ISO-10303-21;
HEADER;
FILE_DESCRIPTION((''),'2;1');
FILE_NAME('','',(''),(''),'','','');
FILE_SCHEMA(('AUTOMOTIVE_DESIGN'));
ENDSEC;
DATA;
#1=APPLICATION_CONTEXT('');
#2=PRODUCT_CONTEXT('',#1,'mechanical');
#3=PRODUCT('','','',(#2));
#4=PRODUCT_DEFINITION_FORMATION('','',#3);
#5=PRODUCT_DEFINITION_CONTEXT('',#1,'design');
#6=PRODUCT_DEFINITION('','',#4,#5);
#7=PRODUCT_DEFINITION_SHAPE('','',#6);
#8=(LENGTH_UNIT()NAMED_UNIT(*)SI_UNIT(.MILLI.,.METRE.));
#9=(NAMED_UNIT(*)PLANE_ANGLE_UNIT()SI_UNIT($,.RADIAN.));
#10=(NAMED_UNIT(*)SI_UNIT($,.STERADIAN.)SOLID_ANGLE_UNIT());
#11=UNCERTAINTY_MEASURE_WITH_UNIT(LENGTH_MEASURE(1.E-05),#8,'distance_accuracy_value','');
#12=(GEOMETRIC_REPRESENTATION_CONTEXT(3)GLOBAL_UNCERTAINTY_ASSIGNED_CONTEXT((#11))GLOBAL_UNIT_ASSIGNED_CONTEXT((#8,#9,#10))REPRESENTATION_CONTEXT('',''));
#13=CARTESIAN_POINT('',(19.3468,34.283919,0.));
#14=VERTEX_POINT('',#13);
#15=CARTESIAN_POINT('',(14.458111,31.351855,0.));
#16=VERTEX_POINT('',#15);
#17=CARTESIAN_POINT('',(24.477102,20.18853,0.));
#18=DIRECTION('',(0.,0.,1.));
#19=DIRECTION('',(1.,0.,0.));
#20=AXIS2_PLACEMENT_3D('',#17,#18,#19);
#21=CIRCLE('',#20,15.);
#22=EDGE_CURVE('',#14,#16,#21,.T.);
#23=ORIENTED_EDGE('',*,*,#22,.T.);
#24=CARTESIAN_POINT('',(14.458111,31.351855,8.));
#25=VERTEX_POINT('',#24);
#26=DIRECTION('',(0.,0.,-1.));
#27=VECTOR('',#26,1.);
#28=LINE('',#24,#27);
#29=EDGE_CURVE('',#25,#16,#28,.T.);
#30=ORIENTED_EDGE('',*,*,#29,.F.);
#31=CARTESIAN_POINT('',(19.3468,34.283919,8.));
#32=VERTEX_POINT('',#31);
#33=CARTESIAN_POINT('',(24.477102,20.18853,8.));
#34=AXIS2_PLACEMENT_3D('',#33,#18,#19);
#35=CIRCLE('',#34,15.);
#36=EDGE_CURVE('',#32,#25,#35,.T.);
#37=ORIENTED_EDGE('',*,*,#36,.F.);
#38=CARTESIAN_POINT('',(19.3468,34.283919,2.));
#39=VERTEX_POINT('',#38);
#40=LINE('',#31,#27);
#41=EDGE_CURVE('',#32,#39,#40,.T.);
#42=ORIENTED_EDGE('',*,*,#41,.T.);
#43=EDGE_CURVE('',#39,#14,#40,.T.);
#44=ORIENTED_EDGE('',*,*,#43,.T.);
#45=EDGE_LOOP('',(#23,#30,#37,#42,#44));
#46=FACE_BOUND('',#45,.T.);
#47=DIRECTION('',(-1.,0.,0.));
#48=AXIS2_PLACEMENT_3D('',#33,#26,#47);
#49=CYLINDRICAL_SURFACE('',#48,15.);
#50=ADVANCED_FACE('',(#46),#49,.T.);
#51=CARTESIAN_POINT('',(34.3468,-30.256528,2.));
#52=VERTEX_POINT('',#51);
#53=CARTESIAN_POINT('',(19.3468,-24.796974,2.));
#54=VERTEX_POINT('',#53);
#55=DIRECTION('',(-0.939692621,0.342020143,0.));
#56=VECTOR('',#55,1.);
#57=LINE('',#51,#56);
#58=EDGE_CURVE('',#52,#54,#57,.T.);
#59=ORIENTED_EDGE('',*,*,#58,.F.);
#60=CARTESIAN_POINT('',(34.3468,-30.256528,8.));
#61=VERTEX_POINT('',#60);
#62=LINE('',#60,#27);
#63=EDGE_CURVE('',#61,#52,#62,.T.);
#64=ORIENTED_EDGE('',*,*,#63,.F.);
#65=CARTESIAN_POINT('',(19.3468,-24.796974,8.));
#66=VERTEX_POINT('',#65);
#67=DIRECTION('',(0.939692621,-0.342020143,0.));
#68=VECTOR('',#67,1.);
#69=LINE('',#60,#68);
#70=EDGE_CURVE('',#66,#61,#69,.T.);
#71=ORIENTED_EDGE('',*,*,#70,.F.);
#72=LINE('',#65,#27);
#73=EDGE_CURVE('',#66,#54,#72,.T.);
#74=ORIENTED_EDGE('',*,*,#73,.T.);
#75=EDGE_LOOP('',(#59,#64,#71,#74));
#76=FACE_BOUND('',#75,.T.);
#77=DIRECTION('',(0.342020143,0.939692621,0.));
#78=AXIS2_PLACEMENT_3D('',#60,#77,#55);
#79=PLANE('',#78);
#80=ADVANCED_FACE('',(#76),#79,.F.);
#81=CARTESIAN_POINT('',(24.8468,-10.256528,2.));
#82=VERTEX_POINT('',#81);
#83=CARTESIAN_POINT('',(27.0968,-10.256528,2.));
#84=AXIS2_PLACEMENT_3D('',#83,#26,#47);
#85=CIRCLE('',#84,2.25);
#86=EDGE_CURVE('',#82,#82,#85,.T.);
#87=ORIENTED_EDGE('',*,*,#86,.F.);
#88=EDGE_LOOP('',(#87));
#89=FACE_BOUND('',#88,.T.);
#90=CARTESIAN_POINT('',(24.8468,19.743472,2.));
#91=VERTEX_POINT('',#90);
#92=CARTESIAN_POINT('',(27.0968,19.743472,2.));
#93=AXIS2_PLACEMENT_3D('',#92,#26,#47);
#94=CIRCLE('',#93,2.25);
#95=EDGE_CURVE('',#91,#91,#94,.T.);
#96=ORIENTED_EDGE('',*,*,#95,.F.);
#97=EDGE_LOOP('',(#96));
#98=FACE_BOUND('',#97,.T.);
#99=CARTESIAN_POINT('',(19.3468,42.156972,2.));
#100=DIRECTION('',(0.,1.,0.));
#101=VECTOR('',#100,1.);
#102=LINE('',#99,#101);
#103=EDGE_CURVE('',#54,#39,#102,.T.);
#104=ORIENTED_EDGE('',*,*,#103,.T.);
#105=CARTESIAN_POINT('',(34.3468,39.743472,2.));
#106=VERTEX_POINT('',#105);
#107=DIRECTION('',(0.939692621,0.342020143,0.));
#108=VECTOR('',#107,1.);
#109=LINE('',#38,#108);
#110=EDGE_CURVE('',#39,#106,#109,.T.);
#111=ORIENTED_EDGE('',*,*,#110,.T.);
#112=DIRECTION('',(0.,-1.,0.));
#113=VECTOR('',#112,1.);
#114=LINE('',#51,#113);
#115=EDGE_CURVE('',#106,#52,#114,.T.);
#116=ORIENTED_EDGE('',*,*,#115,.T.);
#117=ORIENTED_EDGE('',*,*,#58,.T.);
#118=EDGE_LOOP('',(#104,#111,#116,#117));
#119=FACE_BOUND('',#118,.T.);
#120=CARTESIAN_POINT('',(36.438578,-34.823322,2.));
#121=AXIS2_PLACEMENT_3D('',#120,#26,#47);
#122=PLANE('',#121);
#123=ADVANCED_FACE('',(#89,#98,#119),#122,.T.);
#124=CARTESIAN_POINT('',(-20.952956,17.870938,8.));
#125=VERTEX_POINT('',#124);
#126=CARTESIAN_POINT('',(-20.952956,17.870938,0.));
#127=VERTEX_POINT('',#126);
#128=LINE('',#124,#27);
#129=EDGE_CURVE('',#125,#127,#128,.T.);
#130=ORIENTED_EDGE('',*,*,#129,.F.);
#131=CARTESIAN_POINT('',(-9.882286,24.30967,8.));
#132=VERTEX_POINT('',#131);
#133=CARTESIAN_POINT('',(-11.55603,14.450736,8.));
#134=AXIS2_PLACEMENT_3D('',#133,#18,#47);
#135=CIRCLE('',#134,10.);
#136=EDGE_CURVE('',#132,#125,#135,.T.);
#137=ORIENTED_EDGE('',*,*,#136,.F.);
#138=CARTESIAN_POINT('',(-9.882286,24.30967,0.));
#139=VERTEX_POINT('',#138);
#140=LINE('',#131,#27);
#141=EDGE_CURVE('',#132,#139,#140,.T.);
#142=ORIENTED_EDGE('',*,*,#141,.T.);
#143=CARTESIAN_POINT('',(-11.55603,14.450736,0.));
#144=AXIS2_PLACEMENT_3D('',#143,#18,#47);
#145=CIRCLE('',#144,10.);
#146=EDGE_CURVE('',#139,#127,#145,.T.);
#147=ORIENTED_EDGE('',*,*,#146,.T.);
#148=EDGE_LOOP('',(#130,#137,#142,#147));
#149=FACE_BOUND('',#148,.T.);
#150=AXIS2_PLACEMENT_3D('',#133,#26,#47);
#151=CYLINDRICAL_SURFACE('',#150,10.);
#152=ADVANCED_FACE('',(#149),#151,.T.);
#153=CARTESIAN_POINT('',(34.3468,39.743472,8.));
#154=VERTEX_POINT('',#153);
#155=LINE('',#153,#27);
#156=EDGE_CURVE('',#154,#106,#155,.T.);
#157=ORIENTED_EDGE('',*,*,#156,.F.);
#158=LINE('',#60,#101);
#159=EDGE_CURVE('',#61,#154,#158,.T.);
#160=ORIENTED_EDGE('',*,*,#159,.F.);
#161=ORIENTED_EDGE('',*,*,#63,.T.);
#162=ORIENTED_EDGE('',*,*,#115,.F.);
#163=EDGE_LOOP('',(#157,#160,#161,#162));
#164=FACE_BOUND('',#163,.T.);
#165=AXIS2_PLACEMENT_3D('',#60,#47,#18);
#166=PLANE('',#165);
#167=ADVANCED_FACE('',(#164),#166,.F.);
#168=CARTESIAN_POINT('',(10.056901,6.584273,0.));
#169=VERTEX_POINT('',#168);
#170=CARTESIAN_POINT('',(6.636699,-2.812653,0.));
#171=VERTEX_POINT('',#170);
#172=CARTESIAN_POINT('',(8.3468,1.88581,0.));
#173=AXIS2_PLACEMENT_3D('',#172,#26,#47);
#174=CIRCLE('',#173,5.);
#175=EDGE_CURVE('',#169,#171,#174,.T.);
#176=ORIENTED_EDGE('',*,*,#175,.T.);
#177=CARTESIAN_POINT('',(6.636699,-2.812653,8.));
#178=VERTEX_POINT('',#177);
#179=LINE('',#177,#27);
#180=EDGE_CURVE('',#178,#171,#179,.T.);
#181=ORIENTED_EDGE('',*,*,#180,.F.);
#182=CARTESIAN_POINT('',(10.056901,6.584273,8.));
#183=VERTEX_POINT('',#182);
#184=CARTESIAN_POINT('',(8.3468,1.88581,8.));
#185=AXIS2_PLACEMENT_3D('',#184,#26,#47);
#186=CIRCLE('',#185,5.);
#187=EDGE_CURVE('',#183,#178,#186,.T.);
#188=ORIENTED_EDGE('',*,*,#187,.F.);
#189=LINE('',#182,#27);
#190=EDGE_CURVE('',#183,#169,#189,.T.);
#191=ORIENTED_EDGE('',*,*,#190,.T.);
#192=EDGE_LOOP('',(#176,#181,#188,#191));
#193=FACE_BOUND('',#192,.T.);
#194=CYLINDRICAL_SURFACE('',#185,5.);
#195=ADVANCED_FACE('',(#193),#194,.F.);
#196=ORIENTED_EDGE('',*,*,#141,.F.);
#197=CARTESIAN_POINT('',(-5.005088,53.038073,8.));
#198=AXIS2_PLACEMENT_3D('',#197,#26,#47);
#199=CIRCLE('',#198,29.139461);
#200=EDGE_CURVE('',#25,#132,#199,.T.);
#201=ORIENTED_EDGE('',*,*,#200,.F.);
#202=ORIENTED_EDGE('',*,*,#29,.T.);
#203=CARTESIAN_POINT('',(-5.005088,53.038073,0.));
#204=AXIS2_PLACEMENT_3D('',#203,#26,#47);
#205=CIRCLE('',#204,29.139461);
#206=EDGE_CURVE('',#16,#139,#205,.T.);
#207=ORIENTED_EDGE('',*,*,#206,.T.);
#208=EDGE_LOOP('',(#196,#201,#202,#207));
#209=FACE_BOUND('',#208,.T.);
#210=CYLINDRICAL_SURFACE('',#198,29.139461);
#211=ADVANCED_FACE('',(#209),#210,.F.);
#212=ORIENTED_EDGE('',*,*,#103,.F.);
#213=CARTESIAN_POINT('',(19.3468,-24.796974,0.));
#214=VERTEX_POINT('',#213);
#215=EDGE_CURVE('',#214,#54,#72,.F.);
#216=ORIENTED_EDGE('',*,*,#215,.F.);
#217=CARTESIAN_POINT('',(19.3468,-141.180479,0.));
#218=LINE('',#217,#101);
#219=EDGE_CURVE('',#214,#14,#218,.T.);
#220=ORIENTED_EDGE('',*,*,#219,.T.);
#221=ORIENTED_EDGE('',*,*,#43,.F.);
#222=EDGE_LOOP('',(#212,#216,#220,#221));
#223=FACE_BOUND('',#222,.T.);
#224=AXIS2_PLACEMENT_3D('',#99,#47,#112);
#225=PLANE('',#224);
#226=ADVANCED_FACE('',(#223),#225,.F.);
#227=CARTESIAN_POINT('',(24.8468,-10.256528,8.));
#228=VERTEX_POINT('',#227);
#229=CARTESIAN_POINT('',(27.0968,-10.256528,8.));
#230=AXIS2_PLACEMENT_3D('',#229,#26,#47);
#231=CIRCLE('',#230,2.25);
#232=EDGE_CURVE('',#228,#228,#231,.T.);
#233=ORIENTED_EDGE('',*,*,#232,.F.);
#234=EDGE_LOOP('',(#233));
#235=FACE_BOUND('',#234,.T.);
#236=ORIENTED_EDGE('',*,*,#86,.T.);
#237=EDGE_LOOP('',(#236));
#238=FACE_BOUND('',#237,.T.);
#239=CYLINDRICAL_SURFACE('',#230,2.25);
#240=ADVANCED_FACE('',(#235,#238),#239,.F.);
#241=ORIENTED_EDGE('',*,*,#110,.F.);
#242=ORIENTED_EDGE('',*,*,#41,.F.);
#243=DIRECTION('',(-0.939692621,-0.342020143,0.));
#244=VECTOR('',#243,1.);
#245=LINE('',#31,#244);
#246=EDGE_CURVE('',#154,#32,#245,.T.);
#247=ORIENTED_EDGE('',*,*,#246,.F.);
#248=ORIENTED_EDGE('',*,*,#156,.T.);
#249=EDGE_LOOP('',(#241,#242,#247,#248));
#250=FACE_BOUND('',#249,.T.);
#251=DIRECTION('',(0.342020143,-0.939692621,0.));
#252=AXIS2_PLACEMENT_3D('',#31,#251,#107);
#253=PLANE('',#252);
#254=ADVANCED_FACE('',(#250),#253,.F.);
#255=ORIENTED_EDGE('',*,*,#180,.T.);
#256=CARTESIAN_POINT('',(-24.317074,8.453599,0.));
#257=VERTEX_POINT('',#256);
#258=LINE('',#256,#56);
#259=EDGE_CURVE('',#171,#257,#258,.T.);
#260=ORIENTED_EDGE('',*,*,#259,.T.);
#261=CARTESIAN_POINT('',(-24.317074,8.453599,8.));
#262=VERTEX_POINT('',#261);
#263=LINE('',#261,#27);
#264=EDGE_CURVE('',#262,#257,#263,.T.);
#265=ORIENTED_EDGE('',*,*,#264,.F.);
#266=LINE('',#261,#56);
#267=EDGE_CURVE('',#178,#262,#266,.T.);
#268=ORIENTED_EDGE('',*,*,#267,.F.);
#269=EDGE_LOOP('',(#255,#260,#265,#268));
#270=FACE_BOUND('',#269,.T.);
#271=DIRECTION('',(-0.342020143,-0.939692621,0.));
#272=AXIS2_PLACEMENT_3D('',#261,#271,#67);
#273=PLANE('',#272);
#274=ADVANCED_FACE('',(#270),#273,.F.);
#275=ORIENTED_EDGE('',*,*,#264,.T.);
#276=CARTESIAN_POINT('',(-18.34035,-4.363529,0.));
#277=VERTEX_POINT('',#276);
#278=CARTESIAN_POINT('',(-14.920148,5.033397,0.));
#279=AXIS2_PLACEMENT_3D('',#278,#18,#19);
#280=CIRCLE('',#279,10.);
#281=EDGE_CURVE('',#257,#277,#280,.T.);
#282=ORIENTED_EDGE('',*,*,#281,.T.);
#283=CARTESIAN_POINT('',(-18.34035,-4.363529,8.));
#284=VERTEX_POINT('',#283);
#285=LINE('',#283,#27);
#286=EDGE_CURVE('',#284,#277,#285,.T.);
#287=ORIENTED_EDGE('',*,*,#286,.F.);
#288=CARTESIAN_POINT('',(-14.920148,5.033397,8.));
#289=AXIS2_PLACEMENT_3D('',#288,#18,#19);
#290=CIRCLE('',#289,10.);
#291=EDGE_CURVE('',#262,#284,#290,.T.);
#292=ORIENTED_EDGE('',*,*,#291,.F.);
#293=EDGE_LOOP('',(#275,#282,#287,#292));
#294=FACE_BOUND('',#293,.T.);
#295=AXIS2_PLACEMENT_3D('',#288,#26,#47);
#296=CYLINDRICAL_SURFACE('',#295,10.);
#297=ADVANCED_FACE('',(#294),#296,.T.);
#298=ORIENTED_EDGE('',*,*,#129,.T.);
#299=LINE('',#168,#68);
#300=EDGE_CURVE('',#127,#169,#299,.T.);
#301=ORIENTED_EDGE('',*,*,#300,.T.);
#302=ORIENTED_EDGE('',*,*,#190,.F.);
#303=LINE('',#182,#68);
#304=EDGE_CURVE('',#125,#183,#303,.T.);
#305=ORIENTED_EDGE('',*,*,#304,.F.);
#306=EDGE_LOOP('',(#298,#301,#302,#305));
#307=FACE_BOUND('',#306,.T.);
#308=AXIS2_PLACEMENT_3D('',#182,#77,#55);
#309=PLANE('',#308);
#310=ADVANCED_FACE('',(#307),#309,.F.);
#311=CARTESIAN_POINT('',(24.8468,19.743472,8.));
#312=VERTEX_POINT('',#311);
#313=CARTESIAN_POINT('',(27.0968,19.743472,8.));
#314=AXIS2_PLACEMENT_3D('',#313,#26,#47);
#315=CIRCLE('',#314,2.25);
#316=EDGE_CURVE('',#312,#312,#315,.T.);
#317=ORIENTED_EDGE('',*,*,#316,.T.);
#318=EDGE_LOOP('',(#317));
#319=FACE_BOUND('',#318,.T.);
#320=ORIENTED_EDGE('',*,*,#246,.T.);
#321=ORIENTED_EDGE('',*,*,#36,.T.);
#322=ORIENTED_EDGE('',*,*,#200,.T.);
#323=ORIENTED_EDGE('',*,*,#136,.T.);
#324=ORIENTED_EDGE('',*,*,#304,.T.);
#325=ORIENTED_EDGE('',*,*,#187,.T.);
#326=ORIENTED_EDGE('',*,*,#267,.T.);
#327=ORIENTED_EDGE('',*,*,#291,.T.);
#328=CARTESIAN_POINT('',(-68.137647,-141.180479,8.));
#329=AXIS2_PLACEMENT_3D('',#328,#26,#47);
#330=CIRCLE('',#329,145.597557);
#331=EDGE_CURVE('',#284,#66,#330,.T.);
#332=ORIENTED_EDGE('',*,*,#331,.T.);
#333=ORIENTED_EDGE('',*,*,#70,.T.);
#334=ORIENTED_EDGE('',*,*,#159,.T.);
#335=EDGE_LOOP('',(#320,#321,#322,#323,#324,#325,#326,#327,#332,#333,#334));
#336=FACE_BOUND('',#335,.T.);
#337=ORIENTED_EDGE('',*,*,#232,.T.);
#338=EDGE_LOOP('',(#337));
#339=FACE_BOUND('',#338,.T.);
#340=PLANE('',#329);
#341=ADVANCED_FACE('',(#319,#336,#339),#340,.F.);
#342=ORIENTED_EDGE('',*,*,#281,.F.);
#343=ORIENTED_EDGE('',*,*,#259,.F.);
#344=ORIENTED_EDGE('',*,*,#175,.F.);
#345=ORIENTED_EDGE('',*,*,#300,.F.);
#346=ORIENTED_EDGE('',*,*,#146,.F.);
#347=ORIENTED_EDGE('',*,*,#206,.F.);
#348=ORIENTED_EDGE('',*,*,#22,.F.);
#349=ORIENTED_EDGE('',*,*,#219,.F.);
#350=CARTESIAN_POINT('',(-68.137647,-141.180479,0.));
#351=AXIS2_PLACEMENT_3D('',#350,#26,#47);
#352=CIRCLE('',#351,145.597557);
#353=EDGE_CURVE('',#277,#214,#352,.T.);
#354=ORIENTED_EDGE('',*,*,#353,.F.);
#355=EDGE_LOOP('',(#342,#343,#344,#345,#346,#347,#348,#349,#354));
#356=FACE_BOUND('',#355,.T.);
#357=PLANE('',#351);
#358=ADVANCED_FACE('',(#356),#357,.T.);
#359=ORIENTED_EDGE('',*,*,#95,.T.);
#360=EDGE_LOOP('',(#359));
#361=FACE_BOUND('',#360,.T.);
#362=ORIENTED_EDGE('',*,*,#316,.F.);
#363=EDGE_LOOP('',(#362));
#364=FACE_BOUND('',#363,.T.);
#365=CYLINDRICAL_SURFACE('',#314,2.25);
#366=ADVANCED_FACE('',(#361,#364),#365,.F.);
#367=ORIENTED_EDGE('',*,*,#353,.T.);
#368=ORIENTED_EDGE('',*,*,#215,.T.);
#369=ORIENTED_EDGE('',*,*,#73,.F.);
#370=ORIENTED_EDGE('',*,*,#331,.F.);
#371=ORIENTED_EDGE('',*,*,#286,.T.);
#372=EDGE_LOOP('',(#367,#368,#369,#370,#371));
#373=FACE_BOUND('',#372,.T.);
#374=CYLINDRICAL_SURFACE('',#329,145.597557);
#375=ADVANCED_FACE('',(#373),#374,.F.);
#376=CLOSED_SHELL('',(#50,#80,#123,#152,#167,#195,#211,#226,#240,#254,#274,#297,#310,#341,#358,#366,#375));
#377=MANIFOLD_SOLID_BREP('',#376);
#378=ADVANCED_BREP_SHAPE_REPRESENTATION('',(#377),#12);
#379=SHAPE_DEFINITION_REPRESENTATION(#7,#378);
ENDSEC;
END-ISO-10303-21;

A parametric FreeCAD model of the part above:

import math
import FreeCAD as App
import Part
import Sketcher
from FreeCAD import Vector
Q = App.Units.Quantity


def add_polygon(sketch, points):
    """Adds a closed chain of lines whose ends are joined by coincident constraints."""
    first, n = sketch.GeometryCount, len(points)
    for a, b in zip(points, points[1:] + points[:1]):
        sketch.addGeometry(Part.LineSegment(App.Vector(*a, 0), App.Vector(*b, 0)), False)
    for i in range(n):
        sketch.addConstraint(Sketcher.Constraint("Coincident", first + i, 2, first + (i + 1) % n, 1))

doc = App.newDocument("Part")
body = doc.addObject("PartDesign::Body", "Body")

sketch1 = body.newObject("Sketcher::SketchObject", "Sketch")
sketch1.AttachmentSupport = (doc.getObject("XY_Plane"), [""])
sketch1.MapMode = "FlatFace"
sketch1.addGeometry([
    Part.LineSegment(Vector(34, -30, 0), Vector(34, 40, 0)),
    Part.LineSegment(Vector(34, 40, 0), Vector(19, 34, 0)),
    Part.ArcOfCircle(Part.Circle(Vector(24, 20, 0), Vector(0, 0, 1), 15), math.radians(110), math.radians(132)),
    Part.ArcOfCircle(Part.Circle(Vector(-5, 53, 0), Vector(0, 0, 1), 29), math.radians(-100), math.radians(-48)),
    Part.ArcOfCircle(Part.Circle(Vector(-12, 14, 0), Vector(0, 0, 1), 10), math.radians(80), math.radians(160)),
    Part.LineSegment(Vector(-21, 18, 0), Vector(10, 7, 0)),
    Part.ArcOfCircle(Part.Circle(Vector(8, 2, 0), Vector(0, 0, 1), 5), math.radians(-110), math.radians(70)),
    Part.LineSegment(Vector(7, -3, 0), Vector(-24, 8, 0)),
    Part.ArcOfCircle(Part.Circle(Vector(-15, 5, 0), Vector(0, 0, 1), 10), math.radians(160), math.radians(250)),
    Part.ArcOfCircle(Part.Circle(Vector(-68, -141, 0), Vector(0, 0, 1), 146), math.radians(53.07), math.radians(70)),
    Part.LineSegment(Vector(19, -25, 0), Vector(34, -30, 0)),
], False)
sketch1.addConstraint([
    Sketcher.Constraint("Coincident", 0, 2, 1, 1),
    Sketcher.Constraint("Tangent", 1, 2, 2, 1),
    Sketcher.Constraint("Tangent", 2, 2, 3, 2),
    Sketcher.Constraint("Tangent", 3, 1, 4, 1),
    Sketcher.Constraint("Coincident", 4, 2, 5, 1),
    Sketcher.Constraint("Tangent", 5, 2, 6, 2),
    Sketcher.Constraint("Tangent", 6, 1, 7, 1),
    Sketcher.Constraint("Coincident", 7, 2, 8, 1),
    Sketcher.Constraint("Tangent", 8, 2, 9, 2),
    Sketcher.Constraint("Coincident", 9, 1, 10, 1),
    Sketcher.Constraint("Coincident", 10, 2, 0, 1),
    Sketcher.Constraint("Vertical", 0),
    Sketcher.Constraint("Equal", 4, 8),
    Sketcher.Constraint("Parallel", 5, 7),
    Sketcher.Constraint("Parallel", 7, 10),
    Sketcher.Constraint("Vertical", 1, 2, 9, 1),
    Sketcher.Constraint("Equal", 1, 10),
    Sketcher.Constraint("Radius", 2, 15.0),
    Sketcher.Constraint("Radius", 4, 10.0),
    Sketcher.Constraint("Radius", 6, 5.0),
    Sketcher.Constraint("DistanceY", 0, 1, 0, 2, 70.0),
    Sketcher.Constraint("Angle", 1, Q("-160 deg")),
    Sketcher.Constraint("Distance", 5, 33.0),
    Sketcher.Constraint("DistanceX", 6, 3, 0, 2, 26.0),
    Sketcher.Constraint("DistanceX", 1, 2, 0, 2, 15.0),
    Sketcher.Constraint("Radius", 3, 29.139461),
    Sketcher.Constraint("Radius", 9, 145.597557),
    Sketcher.Constraint("DistanceX", -1, 1, 6, 3, 8.3468),
    Sketcher.Constraint("DistanceY", -1, 1, 7, 2, 8.453599),
    Sketcher.Constraint("DistanceX", 9, 3, 8, 3, 53.217499),
    Sketcher.Constraint("DistanceY", 0, 2, 3, 3, 13.294601),
    Sketcher.Constraint("DistanceX", 3, 1, 3, 3, 4.877198),
    Sketcher.Constraint("DistanceY", 8, 3, 7, 2, 3.420201),
])
pad1 = body.newObject("PartDesign::Pad", "Pad")
pad1.Profile = sketch1
pad1.Length = 8

sketch2 = body.newObject("Sketcher::SketchObject", "Sketch001")
sketch2.AttachmentSupport = (doc.getObject("XY_Plane"), [""])
sketch2.MapMode = "FlatFace"
add_polygon(sketch2, [(36, 42), (36, -35), (19, -35), (19, 42)])
sketch2.addConstraint([
    Sketcher.Constraint("Vertical", 0),
    Sketcher.Constraint("Horizontal", 1),
    Sketcher.Constraint("Vertical", 2),
    Sketcher.Constraint("Horizontal", 3),
    Sketcher.Constraint("DistanceX", 1, 2, 1, 1, 17.091779),
    Sketcher.Constraint("DistanceX", -1, 1, 1, 2, 19.3468),
    Sketcher.Constraint("DistanceY", 0, 2, 0, 1, 76.980294),
    Sketcher.Constraint("DistanceY", 0, 2, -1, 1, 34.823322),
])
pocket1 = body.newObject("PartDesign::Pocket", "Pocket")
pocket1.Profile = sketch2
pocket1.Length = 2
pocket1.Reversed = True

sketch3 = body.newObject("Sketcher::SketchObject", "Sketch002")
sketch3.AttachmentSupport = (doc.getObject("XY_Plane"), [""])
sketch3.MapMode = "FlatFace"
sketch3.AttachmentOffset = App.Placement(Vector(0, 0, 2), App.Rotation())
sketch3.addGeometry([
    Part.Circle(Vector(27.1, 19.7, 0), Vector(0, 0, 1), 2.2),
    Part.Circle(Vector(27.1, -10.3, 0), Vector(0, 0, 1), 2.2),
], False)
sketch3.addConstraint([
    Sketcher.Constraint("Equal", 0, 1),
    Sketcher.Constraint("Vertical", 0, 3, 1, 3),
    Sketcher.Constraint("Diameter", 0, 4.5),
    Sketcher.Constraint("DistanceY", 1, 3, 0, 3, 30.0),
    Sketcher.Constraint("DistanceX", -1, 1, 0, 3, 27.0968),
    Sketcher.Constraint("DistanceY", -1, 1, 0, 3, 19.743472),
])
pocket2 = body.newObject("PartDesign::Pocket", "Pocket001")
pocket2.Profile = sketch3
pocket2.Type = "ThroughAll"
pocket2.Reversed = True

doc.recompute()
